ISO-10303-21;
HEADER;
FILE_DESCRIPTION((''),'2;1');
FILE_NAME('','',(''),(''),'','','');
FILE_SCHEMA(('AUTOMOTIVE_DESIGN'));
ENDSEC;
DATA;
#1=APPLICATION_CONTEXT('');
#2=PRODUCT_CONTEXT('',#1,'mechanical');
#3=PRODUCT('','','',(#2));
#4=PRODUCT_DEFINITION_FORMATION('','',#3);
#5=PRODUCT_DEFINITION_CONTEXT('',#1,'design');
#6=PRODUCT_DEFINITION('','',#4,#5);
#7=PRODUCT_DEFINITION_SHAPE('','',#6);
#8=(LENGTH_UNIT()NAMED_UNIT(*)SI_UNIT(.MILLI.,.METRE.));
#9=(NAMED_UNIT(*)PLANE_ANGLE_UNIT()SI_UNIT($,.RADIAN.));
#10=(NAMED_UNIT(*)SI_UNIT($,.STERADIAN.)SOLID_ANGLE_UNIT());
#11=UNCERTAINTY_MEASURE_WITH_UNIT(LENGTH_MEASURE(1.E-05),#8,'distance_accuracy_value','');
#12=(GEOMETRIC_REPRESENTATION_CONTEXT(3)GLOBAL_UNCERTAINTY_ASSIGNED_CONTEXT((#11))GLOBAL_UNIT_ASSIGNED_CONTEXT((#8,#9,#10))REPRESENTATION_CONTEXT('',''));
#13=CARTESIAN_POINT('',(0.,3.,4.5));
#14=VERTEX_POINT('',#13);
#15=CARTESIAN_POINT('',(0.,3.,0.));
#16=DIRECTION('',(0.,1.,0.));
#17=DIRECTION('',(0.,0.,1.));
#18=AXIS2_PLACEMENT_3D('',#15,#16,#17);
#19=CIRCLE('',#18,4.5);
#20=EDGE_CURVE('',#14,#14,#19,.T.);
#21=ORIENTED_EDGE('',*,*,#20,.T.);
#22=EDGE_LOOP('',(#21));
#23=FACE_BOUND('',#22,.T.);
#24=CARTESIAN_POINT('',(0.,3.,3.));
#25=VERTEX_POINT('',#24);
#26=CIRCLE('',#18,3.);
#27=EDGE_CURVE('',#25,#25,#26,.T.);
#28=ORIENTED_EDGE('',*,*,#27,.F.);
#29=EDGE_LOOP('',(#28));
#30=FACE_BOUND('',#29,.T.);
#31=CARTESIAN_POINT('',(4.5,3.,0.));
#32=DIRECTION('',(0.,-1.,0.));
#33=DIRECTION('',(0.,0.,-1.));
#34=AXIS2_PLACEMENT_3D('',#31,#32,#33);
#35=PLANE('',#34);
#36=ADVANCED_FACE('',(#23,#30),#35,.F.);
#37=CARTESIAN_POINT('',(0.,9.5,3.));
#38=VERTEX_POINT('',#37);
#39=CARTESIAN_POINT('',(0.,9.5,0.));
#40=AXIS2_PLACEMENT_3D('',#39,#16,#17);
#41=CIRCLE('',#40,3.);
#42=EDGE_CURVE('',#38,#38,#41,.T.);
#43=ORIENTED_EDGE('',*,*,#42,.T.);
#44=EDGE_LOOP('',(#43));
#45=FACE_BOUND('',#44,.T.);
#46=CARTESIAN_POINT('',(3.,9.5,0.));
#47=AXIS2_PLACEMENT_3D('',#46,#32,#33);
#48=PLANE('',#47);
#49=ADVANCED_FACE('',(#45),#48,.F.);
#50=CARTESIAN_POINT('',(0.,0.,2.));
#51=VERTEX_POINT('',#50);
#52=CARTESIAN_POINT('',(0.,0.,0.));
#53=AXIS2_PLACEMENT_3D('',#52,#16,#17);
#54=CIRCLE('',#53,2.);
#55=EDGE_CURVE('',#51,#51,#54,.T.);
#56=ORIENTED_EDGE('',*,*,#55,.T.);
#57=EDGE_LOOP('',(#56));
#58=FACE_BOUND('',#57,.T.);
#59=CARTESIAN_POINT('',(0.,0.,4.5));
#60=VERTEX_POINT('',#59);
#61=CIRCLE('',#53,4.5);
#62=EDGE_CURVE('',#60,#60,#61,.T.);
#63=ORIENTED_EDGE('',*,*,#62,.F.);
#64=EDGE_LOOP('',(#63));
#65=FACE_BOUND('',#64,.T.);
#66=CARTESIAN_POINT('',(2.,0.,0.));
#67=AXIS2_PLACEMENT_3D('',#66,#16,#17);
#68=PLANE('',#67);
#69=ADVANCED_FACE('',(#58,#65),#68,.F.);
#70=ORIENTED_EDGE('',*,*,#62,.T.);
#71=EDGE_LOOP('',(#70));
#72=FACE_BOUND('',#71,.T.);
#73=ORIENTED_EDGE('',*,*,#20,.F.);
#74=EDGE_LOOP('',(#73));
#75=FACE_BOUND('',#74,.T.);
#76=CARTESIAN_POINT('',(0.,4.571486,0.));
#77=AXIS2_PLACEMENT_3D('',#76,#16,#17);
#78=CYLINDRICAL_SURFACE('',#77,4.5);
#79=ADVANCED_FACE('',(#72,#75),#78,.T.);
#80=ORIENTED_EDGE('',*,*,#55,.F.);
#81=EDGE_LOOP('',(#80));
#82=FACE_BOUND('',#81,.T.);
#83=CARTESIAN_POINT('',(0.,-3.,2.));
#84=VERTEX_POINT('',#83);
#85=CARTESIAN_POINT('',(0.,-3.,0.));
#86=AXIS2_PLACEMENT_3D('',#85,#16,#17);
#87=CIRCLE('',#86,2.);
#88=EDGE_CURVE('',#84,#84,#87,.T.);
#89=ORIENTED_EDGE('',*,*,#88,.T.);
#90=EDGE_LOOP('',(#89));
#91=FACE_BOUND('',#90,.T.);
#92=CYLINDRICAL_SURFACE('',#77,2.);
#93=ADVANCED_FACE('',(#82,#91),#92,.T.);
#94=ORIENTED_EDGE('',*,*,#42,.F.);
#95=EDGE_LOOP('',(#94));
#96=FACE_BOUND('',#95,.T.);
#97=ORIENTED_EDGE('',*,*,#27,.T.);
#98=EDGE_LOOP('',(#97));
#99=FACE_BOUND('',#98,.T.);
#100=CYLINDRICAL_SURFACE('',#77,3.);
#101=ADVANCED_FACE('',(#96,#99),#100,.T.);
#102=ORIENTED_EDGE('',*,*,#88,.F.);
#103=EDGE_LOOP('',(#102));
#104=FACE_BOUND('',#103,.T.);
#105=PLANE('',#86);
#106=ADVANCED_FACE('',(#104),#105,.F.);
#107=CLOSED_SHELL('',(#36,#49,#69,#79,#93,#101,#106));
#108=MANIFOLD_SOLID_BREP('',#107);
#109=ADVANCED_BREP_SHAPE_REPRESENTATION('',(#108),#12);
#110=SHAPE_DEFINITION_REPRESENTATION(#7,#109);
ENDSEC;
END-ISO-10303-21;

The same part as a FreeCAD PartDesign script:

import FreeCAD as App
import Part
import Sketcher
from FreeCAD import Vector
Q = App.Units.Quantity


def add_polygon(sketch, points):
    """Adds a closed chain of lines whose ends are joined by coincident constraints."""
    first, n = sketch.GeometryCount, len(points)
    for a, b in zip(points, points[1:] + points[:1]):
        sketch.addGeometry(Part.LineSegment(App.Vector(*a, 0), App.Vector(*b, 0)), False)
    for i in range(n):
        sketch.addConstraint(Sketcher.Constraint("Coincident", first + i, 2, first + (i + 1) % n, 1))

doc = App.newDocument("Part")
body = doc.addObject("PartDesign::Body", "Body")

# Sketch on XY plane
sketch1 = doc.addObject("Sketcher::SketchObject", "Sketch")
body.addObject(sketch1)
sketch1.AttachmentSupport = (doc.XY_Plane, [""])
sketch1.MapMode = "FlatFace"
add_polygon(sketch1, [(0, -3), (2, -3), (2, 0), (4.5, 0), (4.5, 3), (3, 3), (3, 9.5), (0, 9.5)])  # lines 0-7
sketch1.addConstraint(Sketcher.Constraint("Horizontal", 0))
sketch1.addConstraint(Sketcher.Constraint("Vertical", 1))
sketch1.addConstraint(Sketcher.Constraint("Horizontal", 2))
sketch1.addConstraint(Sketcher.Constraint("Vertical", 3))
sketch1.addConstraint(Sketcher.Constraint("Horizontal", 4))
sketch1.addConstraint(Sketcher.Constraint("Vertical", 5))
sketch1.addConstraint(Sketcher.Constraint("Horizontal", 6))
sketch1.addConstraint(Sketcher.Constraint("Vertical", 7))
sketch1.addConstraint(Sketcher.Constraint("PointOnObject", 1, 2, -1))
sketch1.addConstraint(Sketcher.Constraint("PointOnObject", 6, 2, -2))
sketch1.addConstraint(Sketcher.Constraint("Equal", 6, 1))
sketch1.addConstraint(Sketcher.Constraint("Equal", 1, 3))
sketch1.addConstraint(Sketcher.Constraint("DistanceX", 0, 1, 0, 2, Q("2 mm")))
sketch1.addConstraint(Sketcher.Constraint("DistanceX", 6, 2, 6, 1, Q("3 mm")))
sketch1.addConstraint(Sketcher.Constraint("DistanceX", 2, 1, 2, 2, Q("2.5 mm")))
sketch1.addConstraint(Sketcher.Constraint("DistanceY", 5, 1, 5, 2, Q("6.5 mm")))
revolution = doc.addObject("PartDesign::Revolution", "Revolution")
body.addObject(revolution)
revolution.Profile = sketch1
revolution.ReferenceAxis = (sketch1, ["V_Axis"])
revolution.Angle = 360

doc.recompute()
